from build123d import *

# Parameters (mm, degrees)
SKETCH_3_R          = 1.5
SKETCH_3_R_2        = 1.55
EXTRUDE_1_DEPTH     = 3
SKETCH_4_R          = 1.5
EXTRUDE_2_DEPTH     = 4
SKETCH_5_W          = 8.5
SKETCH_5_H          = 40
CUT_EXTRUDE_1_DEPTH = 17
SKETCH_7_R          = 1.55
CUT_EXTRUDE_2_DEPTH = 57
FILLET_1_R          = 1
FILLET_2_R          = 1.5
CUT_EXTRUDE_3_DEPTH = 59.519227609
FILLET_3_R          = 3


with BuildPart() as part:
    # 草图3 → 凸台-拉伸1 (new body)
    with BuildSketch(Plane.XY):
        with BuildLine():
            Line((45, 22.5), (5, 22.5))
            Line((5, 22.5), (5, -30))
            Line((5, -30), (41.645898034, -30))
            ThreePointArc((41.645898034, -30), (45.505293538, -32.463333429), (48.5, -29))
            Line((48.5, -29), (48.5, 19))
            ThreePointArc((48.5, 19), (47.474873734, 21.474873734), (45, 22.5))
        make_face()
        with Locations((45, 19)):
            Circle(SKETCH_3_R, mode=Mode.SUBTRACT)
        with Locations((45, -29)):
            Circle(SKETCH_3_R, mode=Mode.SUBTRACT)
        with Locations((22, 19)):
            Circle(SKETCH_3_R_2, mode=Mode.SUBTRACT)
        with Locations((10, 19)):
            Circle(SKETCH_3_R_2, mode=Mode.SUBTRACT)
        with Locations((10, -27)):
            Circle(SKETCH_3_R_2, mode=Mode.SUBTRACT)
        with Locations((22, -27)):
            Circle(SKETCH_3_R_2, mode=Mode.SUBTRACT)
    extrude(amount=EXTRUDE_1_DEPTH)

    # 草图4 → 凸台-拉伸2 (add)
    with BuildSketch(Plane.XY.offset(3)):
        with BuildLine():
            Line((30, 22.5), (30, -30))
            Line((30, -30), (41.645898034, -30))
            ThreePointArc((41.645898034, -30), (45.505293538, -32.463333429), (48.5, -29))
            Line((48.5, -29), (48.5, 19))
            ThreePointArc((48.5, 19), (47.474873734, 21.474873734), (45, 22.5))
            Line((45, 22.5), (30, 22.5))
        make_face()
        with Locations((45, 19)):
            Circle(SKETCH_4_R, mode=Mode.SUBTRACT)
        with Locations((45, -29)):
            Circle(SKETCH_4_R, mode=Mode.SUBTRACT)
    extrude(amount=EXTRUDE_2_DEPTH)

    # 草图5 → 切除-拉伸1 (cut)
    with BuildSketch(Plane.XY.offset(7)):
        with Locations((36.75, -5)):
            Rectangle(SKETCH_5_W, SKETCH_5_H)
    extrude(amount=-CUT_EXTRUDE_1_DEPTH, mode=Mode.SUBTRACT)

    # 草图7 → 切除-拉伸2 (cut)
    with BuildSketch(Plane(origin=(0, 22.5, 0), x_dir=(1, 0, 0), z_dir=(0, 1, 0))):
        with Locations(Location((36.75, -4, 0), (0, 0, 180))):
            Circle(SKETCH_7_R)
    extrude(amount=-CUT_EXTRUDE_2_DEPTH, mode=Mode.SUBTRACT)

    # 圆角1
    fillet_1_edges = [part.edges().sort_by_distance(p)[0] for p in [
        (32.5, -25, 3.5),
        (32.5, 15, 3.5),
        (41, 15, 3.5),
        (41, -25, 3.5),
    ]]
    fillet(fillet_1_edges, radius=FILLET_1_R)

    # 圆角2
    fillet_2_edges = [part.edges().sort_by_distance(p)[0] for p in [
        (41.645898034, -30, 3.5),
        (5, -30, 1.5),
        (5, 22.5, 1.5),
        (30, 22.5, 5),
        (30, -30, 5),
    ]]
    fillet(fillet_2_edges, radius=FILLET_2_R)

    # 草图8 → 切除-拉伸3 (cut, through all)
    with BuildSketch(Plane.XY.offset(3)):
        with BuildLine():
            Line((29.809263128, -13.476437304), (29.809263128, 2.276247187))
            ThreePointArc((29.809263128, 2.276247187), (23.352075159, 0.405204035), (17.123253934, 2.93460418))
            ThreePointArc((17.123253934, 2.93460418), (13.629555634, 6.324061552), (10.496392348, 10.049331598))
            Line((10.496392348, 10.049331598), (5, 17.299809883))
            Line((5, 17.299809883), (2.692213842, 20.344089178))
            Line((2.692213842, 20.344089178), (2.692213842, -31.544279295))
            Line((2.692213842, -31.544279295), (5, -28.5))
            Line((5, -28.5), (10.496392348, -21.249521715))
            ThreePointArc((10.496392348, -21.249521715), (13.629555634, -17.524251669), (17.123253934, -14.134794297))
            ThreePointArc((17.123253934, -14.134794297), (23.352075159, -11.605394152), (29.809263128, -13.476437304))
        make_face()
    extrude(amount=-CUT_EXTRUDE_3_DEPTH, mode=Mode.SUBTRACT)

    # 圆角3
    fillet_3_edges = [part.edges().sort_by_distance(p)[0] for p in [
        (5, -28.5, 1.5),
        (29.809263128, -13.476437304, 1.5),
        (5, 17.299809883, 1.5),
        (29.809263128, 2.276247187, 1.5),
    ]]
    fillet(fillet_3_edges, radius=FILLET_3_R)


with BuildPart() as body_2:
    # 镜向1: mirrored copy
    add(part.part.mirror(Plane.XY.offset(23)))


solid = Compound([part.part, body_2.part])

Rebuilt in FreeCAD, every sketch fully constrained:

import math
import FreeCAD as App
import Part
import Sketcher

V = App.Vector
Q = App.Units.Quantity


def edges_at(feature, points):
    """Names of the edges that pass closest to the given points."""
    edges = feature.Shape.Edges
    near = lambda p: min(range(len(edges)), key=lambda i: edges[i].distToShape(Part.Vertex(*p))[0])
    return sorted({f"Edge{near(p) + 1}" for p in points})


def add_polygon(sketch, points):
    """Adds a closed chain of lines whose ends are joined by coincident constraints."""
    first, n = sketch.GeometryCount, len(points)
    for a, b in zip(points, points[1:] + points[:1]):
        sketch.addGeometry(Part.LineSegment(App.Vector(*a, 0), App.Vector(*b, 0)), False)
    for i in range(n):
        sketch.addConstraint(Sketcher.Constraint("Coincident", first + i, 2, first + (i + 1) % n, 1))

doc = App.newDocument("Part")
params = doc.addObject("Spreadsheet::Sheet", "Params")
for row, (alias, value) in enumerate([
    ("sketch1_diameter", "3 mm"),
    ("sketch1_diameter2", "3.1 mm"),
    ("sketch1_radius", "3.5 mm"),
    ("sketch1_width", "40 mm"),
    ("sketch1_height", "48 mm"),
    ("pad1_length", "3 mm"),
    ("sketch2_diameter", "3 mm"),
    ("sketch2_radius", "3.5 mm"),
    ("sketch2_width", "15 mm"),
    ("sketch2_height", "48 mm"),
    ("sketch2_height2", "52.5 mm"),
    ("pad2_length", "4 mm"),
    ("sketch3_height", "40 mm"),
    ("sketch3_width", "8.5 mm"),
    ("pocket1_length", "17 mm"),
    ("sketch4_diameter", "3.1 mm"),
    ("pocket2_length", "57 mm"),
    ("fillet_radius", "1 mm"),
    ("fillet2_radius", "1.5 mm"),
    ("fillet3_radius", "3 mm"),
], start=1):
    params.set(f"A{row}", alias)
    params.set(f"B{row}", "=" + value)
    params.setAlias(f"B{row}", alias)

body = doc.addObject("PartDesign::Body", "Body")

# Sketch on XY plane
sketch1 = body.newObject("Sketcher::SketchObject", "Sketch")
sketch1.AttachmentSupport = (doc.getObject("XY_Plane"), [""])
sketch1.MapMode = "FlatFace"
sketch1.addGeometry([
    Part.LineSegment(V(45, 22.5, 0), V(5, 22.5, 0)),  # 0
    Part.LineSegment(V(5, 22.5, 0), V(5, -30, 0)),  # 1
    Part.LineSegment(V(5, -30, 0), V(41.6, -30, 0)),  # 2
    Part.ArcOfCircle(Part.Circle(V(45, -29, 0), V(0, 0, 1), 3.5), math.radians(-163), math.radians(0)),  # 3
    Part.LineSegment(V(48.5, -29, 0), V(48.5, 19, 0)),  # 4
    Part.ArcOfCircle(Part.Circle(V(45, 19, 0), V(0, 0, 1), 3.5), math.radians(0), math.radians(90)),  # 5
    Part.Circle(V(10, -27, 0), V(0, 0, 1), 1.6),  # 6
    Part.Circle(V(22, -27, 0), V(0, 0, 1), 1.6),  # 7
    Part.Circle(V(45, -29, 0), V(0, 0, 1), 1.5),  # 8
    Part.Circle(V(10, 19, 0), V(0, 0, 1), 1.6),  # 9
    Part.Circle(V(22, 19, 0), V(0, 0, 1), 1.6),  # 10
    Part.Circle(V(45, 19, 0), V(0, 0, 1), 1.5),  # 11
], False)
sketch1.addConstraint([
    Sketcher.Constraint("Coincident", 0, 2, 1, 1),
    Sketcher.Constraint("Coincident", 1, 2, 2, 1),
    Sketcher.Constraint("Coincident", 2, 2, 3, 1),
    Sketcher.Constraint("Tangent", 3, 2, 4, 1),
    Sketcher.Constraint("Tangent", 4, 2, 5, 1),
    Sketcher.Constraint("Tangent", 5, 2, 0, 1),
    Sketcher.Constraint("Horizontal", 0),
    Sketcher.Constraint("Vertical", 1),
    Sketcher.Constraint("Horizontal", 2),
    Sketcher.Constraint("Vertical", 4),
    Sketcher.Constraint("Coincident", 8, 3, 3, 3),
    Sketcher.Constraint("Coincident", 11, 3, 5, 3),
    Sketcher.Constraint("Equal", 3, 5),
    Sketcher.Constraint("Equal", 6, 7),
    Sketcher.Constraint("Equal", 7, 9),
    Sketcher.Constraint("Equal", 9, 10),
    Sketcher.Constraint("Equal", 8, 11),
    Sketcher.Constraint("Horizontal", 6, 3, 7, 3),
    Sketcher.Constraint("Horizontal", 5, 3, 9, 3),
    Sketcher.Constraint("Horizontal", 9, 3, 10, 3),
    Sketcher.Constraint("Vertical", 6, 3, 9, 3),
    Sketcher.Constraint("Vertical", 7, 3, 10, 3),
    Sketcher.Constraint("Diameter", 8, Q("3 mm")),
    Sketcher.Constraint("Diameter", 6, Q("3.1 mm")),
    Sketcher.Constraint("Radius", 3, Q("3.5 mm")),
    Sketcher.Constraint("DistanceX", 0, 2, 0, 1, Q("40 mm")),
    Sketcher.Constraint("DistanceY", 4, 1, 4, 2, Q("48 mm")),
    Sketcher.Constraint("DistanceY", 1, 2, 1, 1, Q("52.5 mm")),
    Sketcher.Constraint("DistanceX", -1, 1, 3, 3, Q("45 mm")),
    Sketcher.Constraint("DistanceY", 3, 3, -1, 1, Q("29 mm")),
    Sketcher.Constraint("DistanceX", -1, 1, 6, 3, Q("10 mm")),
    Sketcher.Constraint("DistanceY", 6, 3, -1, 1, Q("27 mm")),
    Sketcher.Constraint("DistanceX", -1, 1, 7, 3, Q("22 mm")),
])
sketch1.setExpression("Constraints[22]", "Params.sketch1_diameter")
sketch1.setExpression("Constraints[23]", "Params.sketch1_diameter2")
sketch1.setExpression("Constraints[24]", "Params.sketch1_radius")
sketch1.setExpression("Constraints[25]", "Params.sketch1_width")
sketch1.setExpression("Constraints[26]", "Params.sketch1_height")
pad1 = body.newObject("PartDesign::Pad", "Pad")
pad1.Profile = sketch1
pad1.setExpression("Length", "Params.pad1_length")

# Sketch on XY plane
sketch2 = body.newObject("Sketcher::SketchObject", "Sketch001")
sketch2.AttachmentSupport = (doc.getObject("XY_Plane"), [""])
sketch2.MapMode = "FlatFace"
sketch2.AttachmentOffset = App.Placement(V(0, 0, 3), App.Rotation())
sketch2.addGeometry([
    Part.LineSegment(V(30, 22.5, 0), V(30, -30, 0)),  # 0
    Part.LineSegment(V(30, -30, 0), V(41.6, -30, 0)),  # 1
    Part.ArcOfCircle(Part.Circle(V(45, -29, 0), V(0, 0, 1), 3.5), math.radians(-163), math.radians(0)),  # 2
    Part.LineSegment(V(48.5, -29, 0), V(48.5, 19, 0)),  # 3
    Part.ArcOfCircle(Part.Circle(V(45, 19, 0), V(0, 0, 1), 3.5), math.radians(0), math.radians(90)),  # 4
    Part.LineSegment(V(45, 22.5, 0), V(30, 22.5, 0)),  # 5
    Part.Circle(V(45, -29, 0), V(0, 0, 1), 1.5),  # 6
    Part.Circle(V(45, 19, 0), V(0, 0, 1), 1.5),  # 7
], False)
sketch2.addConstraint([
    Sketcher.Constraint("Coincident", 0, 2, 1, 1),
    Sketcher.Constraint("Coincident", 1, 2, 2, 1),
    Sketcher.Constraint("Tangent", 2, 2, 3, 1),
    Sketcher.Constraint("Tangent", 3, 2, 4, 1),
    Sketcher.Constraint("Tangent", 4, 2, 5, 1),
    Sketcher.Constraint("Coincident", 5, 2, 0, 1),
    Sketcher.Constraint("Vertical", 0),
    Sketcher.Constraint("Horizontal", 1),
    Sketcher.Constraint("Vertical", 3),
    Sketcher.Constraint("Horizontal", 5),
    Sketcher.Constraint("Coincident", 6, 3, 2, 3),
    Sketcher.Constraint("Coincident", 7, 3, 4, 3),
    Sketcher.Constraint("Equal", 2, 4),
    Sketcher.Constraint("Equal", 6, 7),
    Sketcher.Constraint("Diameter", 6, Q("3 mm")),
    Sketcher.Constraint("Radius", 2, Q("3.5 mm")),
    Sketcher.Constraint("DistanceX", 5, 2, 5, 1, Q("15 mm")),
    Sketcher.Constraint("DistanceY", 3, 1, 3, 2, Q("48 mm")),
    Sketcher.Constraint("DistanceY", 0, 2, 0, 1, Q("52.5 mm")),
    Sketcher.Constraint("DistanceX", -1, 1, 2, 3, Q("45 mm")),
    Sketcher.Constraint("DistanceY", 2, 3, -1, 1, Q("29 mm")),
])
sketch2.setExpression("Constraints[14]", "Params.sketch2_diameter")
sketch2.setExpression("Constraints[15]", "Params.sketch2_radius")
sketch2.setExpression("Constraints[16]", "Params.sketch2_width")
sketch2.setExpression("Constraints[17]", "Params.sketch2_height")
sketch2.setExpression("Constraints[18]", "Params.sketch2_height2")
pad2 = body.newObject("PartDesign::Pad", "Pad001")
pad2.Profile = sketch2
pad2.setExpression("Length", "Params.pad2_length")

# Sketch on XY plane
sketch3 = body.newObject("Sketcher::SketchObject", "Sketch002")
sketch3.AttachmentSupport = (doc.getObject("XY_Plane"), [""])
sketch3.MapMode = "FlatFace"
sketch3.AttachmentOffset = App.Placement(V(0, 0, 7), App.Rotation())
add_polygon(sketch3, [(32, 15), (32, -25), (41, -25), (41, 15)])  # lines 0-3
sketch3.addConstraint([
    Sketcher.Constraint("Vertical", 0),
    Sketcher.Constraint("Horizontal", 1),
    Sketcher.Constraint("Vertical", 2),
    Sketcher.Constraint("Horizontal", 3),
    Sketcher.Constraint("DistanceY", 0, 2, 0, 1, Q("40 mm")),
    Sketcher.Constraint("DistanceX", 1, 1, 1, 2, Q("8.5 mm")),
    Sketcher.Constraint("DistanceY", 0, 2, -1, 1, Q("25 mm")),
    Sketcher.Constraint("DistanceX", -1, 1, 1, 2, Q("41 mm")),
])
sketch3.setExpression("Constraints[8]", "Params.sketch3_height")
sketch3.setExpression("Constraints[9]", "Params.sketch3_width")
pocket1 = body.newObject("PartDesign::Pocket", "Pocket")
pocket1.Profile = sketch3
pocket1.setExpression("Length", "Params.pocket1_length")

# Sketch on XZ plane
sketch4 = body.newObject("Sketcher::SketchObject", "Sketch003")
sketch4.AttachmentSupport = (doc.getObject("XZ_Plane"), [""])
sketch4.MapMode = "FlatFace"
sketch4.AttachmentOffset = App.Placement(V(0, 0, -22.5), App.Rotation())
sketch4.addGeometry(Part.Circle(V(36.8, 4, 0), V(0, 0, 1), 1.6), False)
sketch4.addConstraint([
    Sketcher.Constraint("Diameter", 0, Q("3.1 mm")),
    Sketcher.Constraint("DistanceY", -1, 1, 0, 3, Q("4 mm")),
    Sketcher.Constraint("DistanceX", -1, 1, 0, 3, Q("36.75 mm")),
])
sketch4.setExpression("Constraints[0]", "Params.sketch4_diameter")
pocket2 = body.newObject("PartDesign::Pocket", "Pocket001")
pocket2.Profile = sketch4
pocket2.setExpression("Length", "Params.pocket2_length")
pocket2.Reversed = True
doc.recompute()

fillet = body.newObject("PartDesign::Fillet", "Fillet")
fillet.Base = (pocket2, edges_at(pocket2, [
    (32.5, -25, 3.5),
    (32.5, 15, 3.5),
    (41, 15, 3.5),
    (41, -25, 3.5),
]))
fillet.setExpression("Radius", "Params.fillet_radius")
doc.recompute()

fillet2 = body.newObject("PartDesign::Fillet", "Fillet001")
fillet2.Base = (fillet, edges_at(fillet, [
    (41.646, -30, 3.5),
    (5, -30, 1.5),
    (5, 22.5, 1.5),
    (30, 22.5, 5),
    (30, -30, 5),
]))
fillet2.setExpression("Radius", "Params.fillet2_radius")

# Sketch on XY plane
sketch5 = body.newObject("Sketcher::SketchObject", "Sketch004")
sketch5.AttachmentSupport = (doc.getObject("XY_Plane"), [""])
sketch5.MapMode = "FlatFace"
sketch5.AttachmentOffset = App.Placement(V(0, 0, 3), App.Rotation())
sketch5.addGeometry([
    Part.LineSegment(V(29.8, -13.5, 0), V(29.8, 2.3, 0)),  # 0
    Part.ArcOfCircle(Part.Circle(V(23.9, 10.6, 0), V(0, 0, 1), 10.3), math.radians(-131), math.radians(-55)),  # 1
    Part.ArcOfCircle(Part.Circle(V(48.8, 39.1, 0), V(0, 0, 1), 48.1), math.radians(-142.84), math.radians(-131.23)),  # 2
    Part.LineSegment(V(10.5, 10, 0), V(5, 17.3, 0)),  # 3
    Part.LineSegment(V(5, 17.3, 0), V(2.7, 20.3, 0)),  # 4
    Part.LineSegment(V(2.7, 20.3, 0), V(2.7, -31.5, 0)),  # 5
    Part.LineSegment(V(2.7, -31.5, 0), V(5, -28.5, 0)),  # 6
    Part.LineSegment(V(5, -28.5, 0), V(10.5, -21.2, 0)),  # 7
    Part.ArcOfCircle(Part.Circle(V(48.8, -50.3, 0), V(0, 0, 1), 48.1), math.radians(131.23), math.radians(142.84)),  # 8
    Part.ArcOfCircle(Part.Circle(V(23.9, -21.8, 0), V(0, 0, 1), 10.3), math.radians(55), math.radians(131)),  # 9
], False)
sketch5.addConstraint([
    Sketcher.Constraint("Coincident", 0, 2, 1, 2),
    Sketcher.Constraint("Tangent", 1, 1, 2, 2),
    Sketcher.Constraint("Tangent", 2, 1, 3, 1),
    Sketcher.Constraint("Coincident", 3, 2, 4, 1),
    Sketcher.Constraint("Coincident", 4, 2, 5, 1),
    Sketcher.Constraint("Coincident", 5, 2, 6, 1),
    Sketcher.Constraint("Coincident", 6, 2, 7, 1),
    Sketcher.Constraint("Tangent", 7, 2, 8, 2),
    Sketcher.Constraint("Tangent", 8, 1, 9, 2),
    Sketcher.Constraint("Coincident", 9, 1, 0, 1),
    Sketcher.Constraint("Vertical", 0),
    Sketcher.Constraint("Vertical", 5),
    Sketcher.Constraint("Equal", 2, 8),
    Sketcher.Constraint("Equal", 1, 9),
    Sketcher.Constraint("Parallel", 3, 4),
    Sketcher.Constraint("Parallel", 6, 7),
    Sketcher.Constraint("Vertical", 2, 3, 8, 3),
    Sketcher.Constraint("Vertical", 1, 3, 9, 3),
    Sketcher.Constraint("Vertical", 3, 2, 6, 2),
    Sketcher.Constraint("Vertical", 2, 1, 7, 2),
    Sketcher.Constraint("DistanceX", -1, 1, 3, 2, Q("5 mm")),
    Sketcher.Constraint("Radius", 1, Q("10.256998 mm")),
    Sketcher.Constraint("DistanceY", 6, 2, -1, 1, Q("28.5 mm")),
    Sketcher.Constraint("Radius", 2, Q("48.090591 mm")),
    Sketcher.Constraint("DistanceY", 5, 2, 5, 1, Q("51.888368 mm")),
    Sketcher.Constraint("DistanceY", 8, 1, 1, 1, Q("17.069398 mm")),
    Sketcher.Constraint("Distance", 3, Q("9.098339 mm")),
    Sketcher.Constraint("DistanceY", 0, 1, 0, 2, Q("15.752684 mm")),
    Sketcher.Constraint("DistanceX", -1, 1, 1, 3, Q("23.88366 mm")),
    Sketcher.Constraint("DistanceY", -1, 1, 1, 3, Q("10.648418 mm")),
])
pocket3 = body.newObject("PartDesign::Pocket", "Pocket002")
pocket3.Profile = sketch5
pocket3.Type = "ThroughAll"
doc.recompute()

fillet3 = body.newObject("PartDesign::Fillet", "Fillet002")
fillet3.Base = (pocket3, edges_at(pocket3, [
    (5, -28.5, 1.5),
    (29.809, -13.476, 1.5),
    (5, 17.3, 1.5),
    (29.809, 2.276, 1.5),
]))
fillet3.setExpression("Radius", "Params.fillet3_radius")
body2 = doc.addObject("PartDesign::Body", "Body001")
doc.recompute()

mirroring = doc.addObject("Part::Mirroring", "Mirroring")
mirroring.Source = body
mirroring.Base = V(0, 0, 23)
mirroring.Normal = V(0, 0, 1)
body2.BaseFeature = mirroring
doc.recompute()
mirroring.Visibility = False

doc.recompute()
